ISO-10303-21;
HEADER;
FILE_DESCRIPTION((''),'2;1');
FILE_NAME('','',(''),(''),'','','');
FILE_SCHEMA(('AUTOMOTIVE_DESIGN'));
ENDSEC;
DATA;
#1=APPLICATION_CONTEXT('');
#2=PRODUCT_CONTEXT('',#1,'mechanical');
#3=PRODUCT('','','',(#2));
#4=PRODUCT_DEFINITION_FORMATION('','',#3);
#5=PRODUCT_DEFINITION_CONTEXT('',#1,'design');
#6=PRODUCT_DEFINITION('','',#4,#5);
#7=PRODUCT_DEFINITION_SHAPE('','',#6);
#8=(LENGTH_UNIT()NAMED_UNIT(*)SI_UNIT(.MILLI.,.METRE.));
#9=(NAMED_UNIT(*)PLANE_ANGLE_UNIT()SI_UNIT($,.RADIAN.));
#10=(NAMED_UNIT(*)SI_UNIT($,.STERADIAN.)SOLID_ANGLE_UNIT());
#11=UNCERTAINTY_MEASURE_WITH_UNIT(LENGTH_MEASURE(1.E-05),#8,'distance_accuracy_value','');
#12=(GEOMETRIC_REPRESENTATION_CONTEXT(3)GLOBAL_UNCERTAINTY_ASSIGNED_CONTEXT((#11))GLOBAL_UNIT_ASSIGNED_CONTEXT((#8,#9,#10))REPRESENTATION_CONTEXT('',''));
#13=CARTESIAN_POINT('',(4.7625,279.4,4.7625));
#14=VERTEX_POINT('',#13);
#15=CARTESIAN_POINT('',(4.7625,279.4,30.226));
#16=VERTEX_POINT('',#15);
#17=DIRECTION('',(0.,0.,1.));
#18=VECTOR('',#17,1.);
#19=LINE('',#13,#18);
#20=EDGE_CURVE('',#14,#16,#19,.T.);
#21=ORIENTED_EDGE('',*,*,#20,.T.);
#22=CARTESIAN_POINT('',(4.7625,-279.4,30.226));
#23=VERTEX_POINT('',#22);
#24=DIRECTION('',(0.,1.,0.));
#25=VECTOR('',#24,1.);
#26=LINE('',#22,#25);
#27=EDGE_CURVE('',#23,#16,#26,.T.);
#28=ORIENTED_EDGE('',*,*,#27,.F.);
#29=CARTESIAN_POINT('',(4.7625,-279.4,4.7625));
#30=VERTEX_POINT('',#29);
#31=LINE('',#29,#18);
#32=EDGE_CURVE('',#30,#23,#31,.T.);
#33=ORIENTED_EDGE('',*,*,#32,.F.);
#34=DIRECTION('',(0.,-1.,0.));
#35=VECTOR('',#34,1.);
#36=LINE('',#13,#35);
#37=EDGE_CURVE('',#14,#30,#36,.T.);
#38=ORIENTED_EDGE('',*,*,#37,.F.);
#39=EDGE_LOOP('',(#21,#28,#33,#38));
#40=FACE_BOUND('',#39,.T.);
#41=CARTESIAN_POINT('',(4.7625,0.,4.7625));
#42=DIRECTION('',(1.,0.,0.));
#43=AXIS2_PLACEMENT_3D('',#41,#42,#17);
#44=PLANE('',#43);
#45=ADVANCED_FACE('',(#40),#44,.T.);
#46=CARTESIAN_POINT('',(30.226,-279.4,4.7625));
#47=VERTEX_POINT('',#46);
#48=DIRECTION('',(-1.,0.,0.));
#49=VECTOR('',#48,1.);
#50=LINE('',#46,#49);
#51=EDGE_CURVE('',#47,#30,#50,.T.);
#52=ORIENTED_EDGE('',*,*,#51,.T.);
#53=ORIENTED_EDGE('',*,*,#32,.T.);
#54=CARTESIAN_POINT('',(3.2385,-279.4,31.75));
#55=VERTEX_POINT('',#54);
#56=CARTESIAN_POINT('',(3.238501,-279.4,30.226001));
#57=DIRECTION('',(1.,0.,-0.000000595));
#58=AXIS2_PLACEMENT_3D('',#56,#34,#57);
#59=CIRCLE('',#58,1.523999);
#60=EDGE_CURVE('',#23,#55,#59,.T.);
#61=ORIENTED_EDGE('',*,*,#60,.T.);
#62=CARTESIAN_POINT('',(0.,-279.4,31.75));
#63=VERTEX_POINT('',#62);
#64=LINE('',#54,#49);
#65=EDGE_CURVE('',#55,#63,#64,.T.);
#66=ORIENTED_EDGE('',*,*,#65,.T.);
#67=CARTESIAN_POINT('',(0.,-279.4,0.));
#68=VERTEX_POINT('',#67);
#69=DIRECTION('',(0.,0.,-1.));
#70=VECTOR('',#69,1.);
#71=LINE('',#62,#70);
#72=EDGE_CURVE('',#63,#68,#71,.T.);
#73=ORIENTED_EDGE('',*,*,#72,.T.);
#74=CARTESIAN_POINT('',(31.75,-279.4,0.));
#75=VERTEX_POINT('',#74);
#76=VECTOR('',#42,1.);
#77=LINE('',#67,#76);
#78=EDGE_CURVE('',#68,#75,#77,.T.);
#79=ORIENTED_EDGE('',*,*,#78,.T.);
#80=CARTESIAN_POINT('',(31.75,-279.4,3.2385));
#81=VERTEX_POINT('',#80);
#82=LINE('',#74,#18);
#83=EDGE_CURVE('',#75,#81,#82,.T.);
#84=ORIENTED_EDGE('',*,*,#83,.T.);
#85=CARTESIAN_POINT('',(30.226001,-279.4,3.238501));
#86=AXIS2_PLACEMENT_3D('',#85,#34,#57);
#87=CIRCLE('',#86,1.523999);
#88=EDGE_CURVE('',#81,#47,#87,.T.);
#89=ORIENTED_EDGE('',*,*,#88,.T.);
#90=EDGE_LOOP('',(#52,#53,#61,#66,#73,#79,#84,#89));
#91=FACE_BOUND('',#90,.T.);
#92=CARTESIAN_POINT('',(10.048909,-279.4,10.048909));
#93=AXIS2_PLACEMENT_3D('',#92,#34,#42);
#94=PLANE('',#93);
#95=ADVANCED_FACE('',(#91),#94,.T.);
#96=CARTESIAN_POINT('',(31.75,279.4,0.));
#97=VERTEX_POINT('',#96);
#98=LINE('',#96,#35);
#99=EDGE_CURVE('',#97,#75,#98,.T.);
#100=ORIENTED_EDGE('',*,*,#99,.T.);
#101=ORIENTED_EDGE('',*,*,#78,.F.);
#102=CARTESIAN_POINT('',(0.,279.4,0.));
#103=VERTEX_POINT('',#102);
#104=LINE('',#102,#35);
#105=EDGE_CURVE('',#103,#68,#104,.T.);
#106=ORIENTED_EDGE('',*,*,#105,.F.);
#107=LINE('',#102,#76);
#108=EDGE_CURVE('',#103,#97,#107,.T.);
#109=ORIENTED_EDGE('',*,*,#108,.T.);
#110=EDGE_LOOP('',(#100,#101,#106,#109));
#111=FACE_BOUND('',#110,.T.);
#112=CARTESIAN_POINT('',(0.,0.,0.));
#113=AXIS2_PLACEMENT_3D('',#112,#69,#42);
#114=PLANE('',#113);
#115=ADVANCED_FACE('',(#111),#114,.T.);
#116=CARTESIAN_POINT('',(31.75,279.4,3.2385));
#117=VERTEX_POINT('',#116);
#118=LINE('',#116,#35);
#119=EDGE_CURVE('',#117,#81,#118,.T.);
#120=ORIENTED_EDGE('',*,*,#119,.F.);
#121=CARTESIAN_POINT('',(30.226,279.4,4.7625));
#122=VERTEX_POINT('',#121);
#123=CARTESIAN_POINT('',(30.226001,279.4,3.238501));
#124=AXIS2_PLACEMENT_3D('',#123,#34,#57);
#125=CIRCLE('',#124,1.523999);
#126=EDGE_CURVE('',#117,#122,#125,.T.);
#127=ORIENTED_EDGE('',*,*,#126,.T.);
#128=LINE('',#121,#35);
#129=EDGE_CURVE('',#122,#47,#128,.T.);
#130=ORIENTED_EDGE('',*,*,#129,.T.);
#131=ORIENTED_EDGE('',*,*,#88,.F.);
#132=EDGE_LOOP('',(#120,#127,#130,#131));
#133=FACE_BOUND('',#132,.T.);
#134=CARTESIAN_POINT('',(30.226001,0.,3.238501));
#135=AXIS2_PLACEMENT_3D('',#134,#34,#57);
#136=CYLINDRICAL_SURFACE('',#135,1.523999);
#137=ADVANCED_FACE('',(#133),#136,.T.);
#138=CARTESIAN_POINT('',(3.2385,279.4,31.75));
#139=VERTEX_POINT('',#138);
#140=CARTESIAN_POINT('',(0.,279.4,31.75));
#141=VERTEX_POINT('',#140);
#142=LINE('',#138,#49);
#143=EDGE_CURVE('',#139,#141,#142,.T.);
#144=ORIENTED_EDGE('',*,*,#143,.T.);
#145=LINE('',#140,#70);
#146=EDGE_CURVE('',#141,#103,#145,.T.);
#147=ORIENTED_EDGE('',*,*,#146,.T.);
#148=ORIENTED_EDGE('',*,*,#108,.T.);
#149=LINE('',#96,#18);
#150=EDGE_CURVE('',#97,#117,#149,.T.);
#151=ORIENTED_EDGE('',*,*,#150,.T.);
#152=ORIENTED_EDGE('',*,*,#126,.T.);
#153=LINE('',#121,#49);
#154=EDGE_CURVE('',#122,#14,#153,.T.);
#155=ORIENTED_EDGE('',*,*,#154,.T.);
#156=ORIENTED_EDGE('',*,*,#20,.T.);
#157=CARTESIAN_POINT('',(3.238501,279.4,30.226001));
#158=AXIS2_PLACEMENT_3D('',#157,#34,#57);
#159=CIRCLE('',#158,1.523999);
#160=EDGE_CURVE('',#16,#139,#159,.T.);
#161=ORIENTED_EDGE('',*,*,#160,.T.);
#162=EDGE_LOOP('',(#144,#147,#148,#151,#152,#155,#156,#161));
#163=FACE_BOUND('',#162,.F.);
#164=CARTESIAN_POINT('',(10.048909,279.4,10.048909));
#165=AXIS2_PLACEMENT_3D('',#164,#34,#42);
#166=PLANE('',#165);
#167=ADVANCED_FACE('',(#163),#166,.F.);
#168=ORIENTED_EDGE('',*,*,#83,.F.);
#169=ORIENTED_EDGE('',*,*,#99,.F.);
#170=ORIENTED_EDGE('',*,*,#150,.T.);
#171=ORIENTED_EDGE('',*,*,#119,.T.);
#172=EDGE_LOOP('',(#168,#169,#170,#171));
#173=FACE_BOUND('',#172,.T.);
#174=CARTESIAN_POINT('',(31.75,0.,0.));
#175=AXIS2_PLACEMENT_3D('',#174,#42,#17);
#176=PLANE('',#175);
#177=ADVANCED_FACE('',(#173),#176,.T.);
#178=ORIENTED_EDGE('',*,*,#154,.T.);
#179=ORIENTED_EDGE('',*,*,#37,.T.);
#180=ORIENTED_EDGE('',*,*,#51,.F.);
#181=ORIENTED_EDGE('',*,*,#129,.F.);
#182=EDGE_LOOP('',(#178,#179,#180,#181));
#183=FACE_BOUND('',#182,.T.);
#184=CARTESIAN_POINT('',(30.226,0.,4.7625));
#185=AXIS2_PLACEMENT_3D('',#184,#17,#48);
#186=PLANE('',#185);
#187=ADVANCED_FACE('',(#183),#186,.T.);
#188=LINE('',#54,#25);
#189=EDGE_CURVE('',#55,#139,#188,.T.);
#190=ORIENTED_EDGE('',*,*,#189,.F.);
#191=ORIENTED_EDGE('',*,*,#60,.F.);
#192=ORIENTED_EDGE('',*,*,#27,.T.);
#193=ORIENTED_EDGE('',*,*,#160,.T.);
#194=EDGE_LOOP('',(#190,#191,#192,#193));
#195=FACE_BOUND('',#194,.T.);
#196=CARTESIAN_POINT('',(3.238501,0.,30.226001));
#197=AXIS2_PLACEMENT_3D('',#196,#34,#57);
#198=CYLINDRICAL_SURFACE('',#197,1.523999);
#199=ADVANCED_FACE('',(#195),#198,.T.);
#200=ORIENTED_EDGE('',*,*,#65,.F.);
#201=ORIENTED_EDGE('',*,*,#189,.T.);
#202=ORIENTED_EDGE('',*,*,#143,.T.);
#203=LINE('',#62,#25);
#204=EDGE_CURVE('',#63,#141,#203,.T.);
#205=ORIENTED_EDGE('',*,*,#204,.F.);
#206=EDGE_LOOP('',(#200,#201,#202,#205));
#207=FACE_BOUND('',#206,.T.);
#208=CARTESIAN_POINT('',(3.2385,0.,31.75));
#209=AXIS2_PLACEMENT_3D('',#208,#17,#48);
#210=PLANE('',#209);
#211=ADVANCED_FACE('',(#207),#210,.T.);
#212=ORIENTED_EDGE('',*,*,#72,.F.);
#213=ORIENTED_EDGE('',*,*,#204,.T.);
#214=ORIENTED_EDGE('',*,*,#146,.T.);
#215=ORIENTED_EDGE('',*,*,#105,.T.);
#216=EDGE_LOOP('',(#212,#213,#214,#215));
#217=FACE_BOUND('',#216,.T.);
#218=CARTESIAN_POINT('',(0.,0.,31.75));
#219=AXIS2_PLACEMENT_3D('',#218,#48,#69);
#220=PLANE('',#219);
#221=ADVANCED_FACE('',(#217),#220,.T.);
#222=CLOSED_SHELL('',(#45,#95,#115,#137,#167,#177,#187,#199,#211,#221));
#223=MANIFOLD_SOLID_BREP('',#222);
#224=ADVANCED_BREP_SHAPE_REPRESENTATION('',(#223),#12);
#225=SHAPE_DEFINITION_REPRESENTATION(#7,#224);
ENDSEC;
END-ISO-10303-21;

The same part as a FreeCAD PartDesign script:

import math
import FreeCAD as App
import Part
import Sketcher
Q = App.Units.Quantity

doc = App.newDocument("Part")
body = doc.addObject("PartDesign::Body", "Body")

# Sketch on XZ plane
sketch1 = body.newObject("Sketcher::SketchObject", "Sketch")
sketch1.AttachmentSupport = (doc.getObject("XZ_Plane"), [""])
sketch1.MapMode = "FlatFace"
sketch1.addGeometry([
    Part.LineSegment(App.Vector(0, 31.8, 0), App.Vector(0, 0, 0)),  # 0
    Part.LineSegment(App.Vector(0, 0, 0), App.Vector(31.8, 0, 0)),  # 1
    Part.LineSegment(App.Vector(31.8, 0, 0), App.Vector(31.8, 3.2, 0)),  # 2
    Part.ArcOfCircle(Part.Circle(App.Vector(30.2, 3.2, 0), App.Vector(0, 0, 1), 1.5), math.radians(0), math.radians(90)),  # 3
    Part.LineSegment(App.Vector(30.2, 4.8, 0), App.Vector(4.8, 4.8, 0)),  # 4
    Part.LineSegment(App.Vector(4.8, 4.8, 0), App.Vector(4.8, 30.2, 0)),  # 5
    Part.ArcOfCircle(Part.Circle(App.Vector(3.2, 30.2, 0), App.Vector(0, 0, 1), 1.5), math.radians(0), math.radians(90)),  # 6
    Part.LineSegment(App.Vector(3.2, 31.8, 0), App.Vector(0, 31.8, 0)),  # 7
], False)
sketch1.addConstraint([
    Sketcher.Constraint("Coincident", 0, 2, 1, 1),
    Sketcher.Constraint("Coincident", 1, 2, 2, 1),
    Sketcher.Constraint("Tangent", 2, 2, 3, 1),
    Sketcher.Constraint("Tangent", 3, 2, 4, 1),
    Sketcher.Constraint("Coincident", 4, 2, 5, 1),
    Sketcher.Constraint("Tangent", 5, 2, 6, 1),
    Sketcher.Constraint("Tangent", 6, 2, 7, 1),
    Sketcher.Constraint("Coincident", 7, 2, 0, 1),
    Sketcher.Constraint("Vertical", 0),
    Sketcher.Constraint("Horizontal", 1),
    Sketcher.Constraint("Vertical", 2),
    Sketcher.Constraint("Horizontal", 4),
    Sketcher.Constraint("Vertical", 5),
    Sketcher.Constraint("Horizontal", 7),
    Sketcher.Constraint("Coincident", 0, 2, -1, 1),
    Sketcher.Constraint("Equal", 3, 6),
    Sketcher.Constraint("Equal", 1, 0),
    Sketcher.Constraint("Equal", 7, 2),
    Sketcher.Constraint("Radius", 3, Q("0.06 in")),
    Sketcher.Constraint("DistanceX", 1, 1, 1, 2, Q("1.25 in")),
    Sketcher.Constraint("DistanceX", 4, 2, 4, 1, Q("1.0025 in")),
])
pad1 = body.newObject("PartDesign::Pad", "Pad")
pad1.Profile = sketch1
pad1.Length = Q("22 in")
pad1.Midplane = True

doc.recompute()
